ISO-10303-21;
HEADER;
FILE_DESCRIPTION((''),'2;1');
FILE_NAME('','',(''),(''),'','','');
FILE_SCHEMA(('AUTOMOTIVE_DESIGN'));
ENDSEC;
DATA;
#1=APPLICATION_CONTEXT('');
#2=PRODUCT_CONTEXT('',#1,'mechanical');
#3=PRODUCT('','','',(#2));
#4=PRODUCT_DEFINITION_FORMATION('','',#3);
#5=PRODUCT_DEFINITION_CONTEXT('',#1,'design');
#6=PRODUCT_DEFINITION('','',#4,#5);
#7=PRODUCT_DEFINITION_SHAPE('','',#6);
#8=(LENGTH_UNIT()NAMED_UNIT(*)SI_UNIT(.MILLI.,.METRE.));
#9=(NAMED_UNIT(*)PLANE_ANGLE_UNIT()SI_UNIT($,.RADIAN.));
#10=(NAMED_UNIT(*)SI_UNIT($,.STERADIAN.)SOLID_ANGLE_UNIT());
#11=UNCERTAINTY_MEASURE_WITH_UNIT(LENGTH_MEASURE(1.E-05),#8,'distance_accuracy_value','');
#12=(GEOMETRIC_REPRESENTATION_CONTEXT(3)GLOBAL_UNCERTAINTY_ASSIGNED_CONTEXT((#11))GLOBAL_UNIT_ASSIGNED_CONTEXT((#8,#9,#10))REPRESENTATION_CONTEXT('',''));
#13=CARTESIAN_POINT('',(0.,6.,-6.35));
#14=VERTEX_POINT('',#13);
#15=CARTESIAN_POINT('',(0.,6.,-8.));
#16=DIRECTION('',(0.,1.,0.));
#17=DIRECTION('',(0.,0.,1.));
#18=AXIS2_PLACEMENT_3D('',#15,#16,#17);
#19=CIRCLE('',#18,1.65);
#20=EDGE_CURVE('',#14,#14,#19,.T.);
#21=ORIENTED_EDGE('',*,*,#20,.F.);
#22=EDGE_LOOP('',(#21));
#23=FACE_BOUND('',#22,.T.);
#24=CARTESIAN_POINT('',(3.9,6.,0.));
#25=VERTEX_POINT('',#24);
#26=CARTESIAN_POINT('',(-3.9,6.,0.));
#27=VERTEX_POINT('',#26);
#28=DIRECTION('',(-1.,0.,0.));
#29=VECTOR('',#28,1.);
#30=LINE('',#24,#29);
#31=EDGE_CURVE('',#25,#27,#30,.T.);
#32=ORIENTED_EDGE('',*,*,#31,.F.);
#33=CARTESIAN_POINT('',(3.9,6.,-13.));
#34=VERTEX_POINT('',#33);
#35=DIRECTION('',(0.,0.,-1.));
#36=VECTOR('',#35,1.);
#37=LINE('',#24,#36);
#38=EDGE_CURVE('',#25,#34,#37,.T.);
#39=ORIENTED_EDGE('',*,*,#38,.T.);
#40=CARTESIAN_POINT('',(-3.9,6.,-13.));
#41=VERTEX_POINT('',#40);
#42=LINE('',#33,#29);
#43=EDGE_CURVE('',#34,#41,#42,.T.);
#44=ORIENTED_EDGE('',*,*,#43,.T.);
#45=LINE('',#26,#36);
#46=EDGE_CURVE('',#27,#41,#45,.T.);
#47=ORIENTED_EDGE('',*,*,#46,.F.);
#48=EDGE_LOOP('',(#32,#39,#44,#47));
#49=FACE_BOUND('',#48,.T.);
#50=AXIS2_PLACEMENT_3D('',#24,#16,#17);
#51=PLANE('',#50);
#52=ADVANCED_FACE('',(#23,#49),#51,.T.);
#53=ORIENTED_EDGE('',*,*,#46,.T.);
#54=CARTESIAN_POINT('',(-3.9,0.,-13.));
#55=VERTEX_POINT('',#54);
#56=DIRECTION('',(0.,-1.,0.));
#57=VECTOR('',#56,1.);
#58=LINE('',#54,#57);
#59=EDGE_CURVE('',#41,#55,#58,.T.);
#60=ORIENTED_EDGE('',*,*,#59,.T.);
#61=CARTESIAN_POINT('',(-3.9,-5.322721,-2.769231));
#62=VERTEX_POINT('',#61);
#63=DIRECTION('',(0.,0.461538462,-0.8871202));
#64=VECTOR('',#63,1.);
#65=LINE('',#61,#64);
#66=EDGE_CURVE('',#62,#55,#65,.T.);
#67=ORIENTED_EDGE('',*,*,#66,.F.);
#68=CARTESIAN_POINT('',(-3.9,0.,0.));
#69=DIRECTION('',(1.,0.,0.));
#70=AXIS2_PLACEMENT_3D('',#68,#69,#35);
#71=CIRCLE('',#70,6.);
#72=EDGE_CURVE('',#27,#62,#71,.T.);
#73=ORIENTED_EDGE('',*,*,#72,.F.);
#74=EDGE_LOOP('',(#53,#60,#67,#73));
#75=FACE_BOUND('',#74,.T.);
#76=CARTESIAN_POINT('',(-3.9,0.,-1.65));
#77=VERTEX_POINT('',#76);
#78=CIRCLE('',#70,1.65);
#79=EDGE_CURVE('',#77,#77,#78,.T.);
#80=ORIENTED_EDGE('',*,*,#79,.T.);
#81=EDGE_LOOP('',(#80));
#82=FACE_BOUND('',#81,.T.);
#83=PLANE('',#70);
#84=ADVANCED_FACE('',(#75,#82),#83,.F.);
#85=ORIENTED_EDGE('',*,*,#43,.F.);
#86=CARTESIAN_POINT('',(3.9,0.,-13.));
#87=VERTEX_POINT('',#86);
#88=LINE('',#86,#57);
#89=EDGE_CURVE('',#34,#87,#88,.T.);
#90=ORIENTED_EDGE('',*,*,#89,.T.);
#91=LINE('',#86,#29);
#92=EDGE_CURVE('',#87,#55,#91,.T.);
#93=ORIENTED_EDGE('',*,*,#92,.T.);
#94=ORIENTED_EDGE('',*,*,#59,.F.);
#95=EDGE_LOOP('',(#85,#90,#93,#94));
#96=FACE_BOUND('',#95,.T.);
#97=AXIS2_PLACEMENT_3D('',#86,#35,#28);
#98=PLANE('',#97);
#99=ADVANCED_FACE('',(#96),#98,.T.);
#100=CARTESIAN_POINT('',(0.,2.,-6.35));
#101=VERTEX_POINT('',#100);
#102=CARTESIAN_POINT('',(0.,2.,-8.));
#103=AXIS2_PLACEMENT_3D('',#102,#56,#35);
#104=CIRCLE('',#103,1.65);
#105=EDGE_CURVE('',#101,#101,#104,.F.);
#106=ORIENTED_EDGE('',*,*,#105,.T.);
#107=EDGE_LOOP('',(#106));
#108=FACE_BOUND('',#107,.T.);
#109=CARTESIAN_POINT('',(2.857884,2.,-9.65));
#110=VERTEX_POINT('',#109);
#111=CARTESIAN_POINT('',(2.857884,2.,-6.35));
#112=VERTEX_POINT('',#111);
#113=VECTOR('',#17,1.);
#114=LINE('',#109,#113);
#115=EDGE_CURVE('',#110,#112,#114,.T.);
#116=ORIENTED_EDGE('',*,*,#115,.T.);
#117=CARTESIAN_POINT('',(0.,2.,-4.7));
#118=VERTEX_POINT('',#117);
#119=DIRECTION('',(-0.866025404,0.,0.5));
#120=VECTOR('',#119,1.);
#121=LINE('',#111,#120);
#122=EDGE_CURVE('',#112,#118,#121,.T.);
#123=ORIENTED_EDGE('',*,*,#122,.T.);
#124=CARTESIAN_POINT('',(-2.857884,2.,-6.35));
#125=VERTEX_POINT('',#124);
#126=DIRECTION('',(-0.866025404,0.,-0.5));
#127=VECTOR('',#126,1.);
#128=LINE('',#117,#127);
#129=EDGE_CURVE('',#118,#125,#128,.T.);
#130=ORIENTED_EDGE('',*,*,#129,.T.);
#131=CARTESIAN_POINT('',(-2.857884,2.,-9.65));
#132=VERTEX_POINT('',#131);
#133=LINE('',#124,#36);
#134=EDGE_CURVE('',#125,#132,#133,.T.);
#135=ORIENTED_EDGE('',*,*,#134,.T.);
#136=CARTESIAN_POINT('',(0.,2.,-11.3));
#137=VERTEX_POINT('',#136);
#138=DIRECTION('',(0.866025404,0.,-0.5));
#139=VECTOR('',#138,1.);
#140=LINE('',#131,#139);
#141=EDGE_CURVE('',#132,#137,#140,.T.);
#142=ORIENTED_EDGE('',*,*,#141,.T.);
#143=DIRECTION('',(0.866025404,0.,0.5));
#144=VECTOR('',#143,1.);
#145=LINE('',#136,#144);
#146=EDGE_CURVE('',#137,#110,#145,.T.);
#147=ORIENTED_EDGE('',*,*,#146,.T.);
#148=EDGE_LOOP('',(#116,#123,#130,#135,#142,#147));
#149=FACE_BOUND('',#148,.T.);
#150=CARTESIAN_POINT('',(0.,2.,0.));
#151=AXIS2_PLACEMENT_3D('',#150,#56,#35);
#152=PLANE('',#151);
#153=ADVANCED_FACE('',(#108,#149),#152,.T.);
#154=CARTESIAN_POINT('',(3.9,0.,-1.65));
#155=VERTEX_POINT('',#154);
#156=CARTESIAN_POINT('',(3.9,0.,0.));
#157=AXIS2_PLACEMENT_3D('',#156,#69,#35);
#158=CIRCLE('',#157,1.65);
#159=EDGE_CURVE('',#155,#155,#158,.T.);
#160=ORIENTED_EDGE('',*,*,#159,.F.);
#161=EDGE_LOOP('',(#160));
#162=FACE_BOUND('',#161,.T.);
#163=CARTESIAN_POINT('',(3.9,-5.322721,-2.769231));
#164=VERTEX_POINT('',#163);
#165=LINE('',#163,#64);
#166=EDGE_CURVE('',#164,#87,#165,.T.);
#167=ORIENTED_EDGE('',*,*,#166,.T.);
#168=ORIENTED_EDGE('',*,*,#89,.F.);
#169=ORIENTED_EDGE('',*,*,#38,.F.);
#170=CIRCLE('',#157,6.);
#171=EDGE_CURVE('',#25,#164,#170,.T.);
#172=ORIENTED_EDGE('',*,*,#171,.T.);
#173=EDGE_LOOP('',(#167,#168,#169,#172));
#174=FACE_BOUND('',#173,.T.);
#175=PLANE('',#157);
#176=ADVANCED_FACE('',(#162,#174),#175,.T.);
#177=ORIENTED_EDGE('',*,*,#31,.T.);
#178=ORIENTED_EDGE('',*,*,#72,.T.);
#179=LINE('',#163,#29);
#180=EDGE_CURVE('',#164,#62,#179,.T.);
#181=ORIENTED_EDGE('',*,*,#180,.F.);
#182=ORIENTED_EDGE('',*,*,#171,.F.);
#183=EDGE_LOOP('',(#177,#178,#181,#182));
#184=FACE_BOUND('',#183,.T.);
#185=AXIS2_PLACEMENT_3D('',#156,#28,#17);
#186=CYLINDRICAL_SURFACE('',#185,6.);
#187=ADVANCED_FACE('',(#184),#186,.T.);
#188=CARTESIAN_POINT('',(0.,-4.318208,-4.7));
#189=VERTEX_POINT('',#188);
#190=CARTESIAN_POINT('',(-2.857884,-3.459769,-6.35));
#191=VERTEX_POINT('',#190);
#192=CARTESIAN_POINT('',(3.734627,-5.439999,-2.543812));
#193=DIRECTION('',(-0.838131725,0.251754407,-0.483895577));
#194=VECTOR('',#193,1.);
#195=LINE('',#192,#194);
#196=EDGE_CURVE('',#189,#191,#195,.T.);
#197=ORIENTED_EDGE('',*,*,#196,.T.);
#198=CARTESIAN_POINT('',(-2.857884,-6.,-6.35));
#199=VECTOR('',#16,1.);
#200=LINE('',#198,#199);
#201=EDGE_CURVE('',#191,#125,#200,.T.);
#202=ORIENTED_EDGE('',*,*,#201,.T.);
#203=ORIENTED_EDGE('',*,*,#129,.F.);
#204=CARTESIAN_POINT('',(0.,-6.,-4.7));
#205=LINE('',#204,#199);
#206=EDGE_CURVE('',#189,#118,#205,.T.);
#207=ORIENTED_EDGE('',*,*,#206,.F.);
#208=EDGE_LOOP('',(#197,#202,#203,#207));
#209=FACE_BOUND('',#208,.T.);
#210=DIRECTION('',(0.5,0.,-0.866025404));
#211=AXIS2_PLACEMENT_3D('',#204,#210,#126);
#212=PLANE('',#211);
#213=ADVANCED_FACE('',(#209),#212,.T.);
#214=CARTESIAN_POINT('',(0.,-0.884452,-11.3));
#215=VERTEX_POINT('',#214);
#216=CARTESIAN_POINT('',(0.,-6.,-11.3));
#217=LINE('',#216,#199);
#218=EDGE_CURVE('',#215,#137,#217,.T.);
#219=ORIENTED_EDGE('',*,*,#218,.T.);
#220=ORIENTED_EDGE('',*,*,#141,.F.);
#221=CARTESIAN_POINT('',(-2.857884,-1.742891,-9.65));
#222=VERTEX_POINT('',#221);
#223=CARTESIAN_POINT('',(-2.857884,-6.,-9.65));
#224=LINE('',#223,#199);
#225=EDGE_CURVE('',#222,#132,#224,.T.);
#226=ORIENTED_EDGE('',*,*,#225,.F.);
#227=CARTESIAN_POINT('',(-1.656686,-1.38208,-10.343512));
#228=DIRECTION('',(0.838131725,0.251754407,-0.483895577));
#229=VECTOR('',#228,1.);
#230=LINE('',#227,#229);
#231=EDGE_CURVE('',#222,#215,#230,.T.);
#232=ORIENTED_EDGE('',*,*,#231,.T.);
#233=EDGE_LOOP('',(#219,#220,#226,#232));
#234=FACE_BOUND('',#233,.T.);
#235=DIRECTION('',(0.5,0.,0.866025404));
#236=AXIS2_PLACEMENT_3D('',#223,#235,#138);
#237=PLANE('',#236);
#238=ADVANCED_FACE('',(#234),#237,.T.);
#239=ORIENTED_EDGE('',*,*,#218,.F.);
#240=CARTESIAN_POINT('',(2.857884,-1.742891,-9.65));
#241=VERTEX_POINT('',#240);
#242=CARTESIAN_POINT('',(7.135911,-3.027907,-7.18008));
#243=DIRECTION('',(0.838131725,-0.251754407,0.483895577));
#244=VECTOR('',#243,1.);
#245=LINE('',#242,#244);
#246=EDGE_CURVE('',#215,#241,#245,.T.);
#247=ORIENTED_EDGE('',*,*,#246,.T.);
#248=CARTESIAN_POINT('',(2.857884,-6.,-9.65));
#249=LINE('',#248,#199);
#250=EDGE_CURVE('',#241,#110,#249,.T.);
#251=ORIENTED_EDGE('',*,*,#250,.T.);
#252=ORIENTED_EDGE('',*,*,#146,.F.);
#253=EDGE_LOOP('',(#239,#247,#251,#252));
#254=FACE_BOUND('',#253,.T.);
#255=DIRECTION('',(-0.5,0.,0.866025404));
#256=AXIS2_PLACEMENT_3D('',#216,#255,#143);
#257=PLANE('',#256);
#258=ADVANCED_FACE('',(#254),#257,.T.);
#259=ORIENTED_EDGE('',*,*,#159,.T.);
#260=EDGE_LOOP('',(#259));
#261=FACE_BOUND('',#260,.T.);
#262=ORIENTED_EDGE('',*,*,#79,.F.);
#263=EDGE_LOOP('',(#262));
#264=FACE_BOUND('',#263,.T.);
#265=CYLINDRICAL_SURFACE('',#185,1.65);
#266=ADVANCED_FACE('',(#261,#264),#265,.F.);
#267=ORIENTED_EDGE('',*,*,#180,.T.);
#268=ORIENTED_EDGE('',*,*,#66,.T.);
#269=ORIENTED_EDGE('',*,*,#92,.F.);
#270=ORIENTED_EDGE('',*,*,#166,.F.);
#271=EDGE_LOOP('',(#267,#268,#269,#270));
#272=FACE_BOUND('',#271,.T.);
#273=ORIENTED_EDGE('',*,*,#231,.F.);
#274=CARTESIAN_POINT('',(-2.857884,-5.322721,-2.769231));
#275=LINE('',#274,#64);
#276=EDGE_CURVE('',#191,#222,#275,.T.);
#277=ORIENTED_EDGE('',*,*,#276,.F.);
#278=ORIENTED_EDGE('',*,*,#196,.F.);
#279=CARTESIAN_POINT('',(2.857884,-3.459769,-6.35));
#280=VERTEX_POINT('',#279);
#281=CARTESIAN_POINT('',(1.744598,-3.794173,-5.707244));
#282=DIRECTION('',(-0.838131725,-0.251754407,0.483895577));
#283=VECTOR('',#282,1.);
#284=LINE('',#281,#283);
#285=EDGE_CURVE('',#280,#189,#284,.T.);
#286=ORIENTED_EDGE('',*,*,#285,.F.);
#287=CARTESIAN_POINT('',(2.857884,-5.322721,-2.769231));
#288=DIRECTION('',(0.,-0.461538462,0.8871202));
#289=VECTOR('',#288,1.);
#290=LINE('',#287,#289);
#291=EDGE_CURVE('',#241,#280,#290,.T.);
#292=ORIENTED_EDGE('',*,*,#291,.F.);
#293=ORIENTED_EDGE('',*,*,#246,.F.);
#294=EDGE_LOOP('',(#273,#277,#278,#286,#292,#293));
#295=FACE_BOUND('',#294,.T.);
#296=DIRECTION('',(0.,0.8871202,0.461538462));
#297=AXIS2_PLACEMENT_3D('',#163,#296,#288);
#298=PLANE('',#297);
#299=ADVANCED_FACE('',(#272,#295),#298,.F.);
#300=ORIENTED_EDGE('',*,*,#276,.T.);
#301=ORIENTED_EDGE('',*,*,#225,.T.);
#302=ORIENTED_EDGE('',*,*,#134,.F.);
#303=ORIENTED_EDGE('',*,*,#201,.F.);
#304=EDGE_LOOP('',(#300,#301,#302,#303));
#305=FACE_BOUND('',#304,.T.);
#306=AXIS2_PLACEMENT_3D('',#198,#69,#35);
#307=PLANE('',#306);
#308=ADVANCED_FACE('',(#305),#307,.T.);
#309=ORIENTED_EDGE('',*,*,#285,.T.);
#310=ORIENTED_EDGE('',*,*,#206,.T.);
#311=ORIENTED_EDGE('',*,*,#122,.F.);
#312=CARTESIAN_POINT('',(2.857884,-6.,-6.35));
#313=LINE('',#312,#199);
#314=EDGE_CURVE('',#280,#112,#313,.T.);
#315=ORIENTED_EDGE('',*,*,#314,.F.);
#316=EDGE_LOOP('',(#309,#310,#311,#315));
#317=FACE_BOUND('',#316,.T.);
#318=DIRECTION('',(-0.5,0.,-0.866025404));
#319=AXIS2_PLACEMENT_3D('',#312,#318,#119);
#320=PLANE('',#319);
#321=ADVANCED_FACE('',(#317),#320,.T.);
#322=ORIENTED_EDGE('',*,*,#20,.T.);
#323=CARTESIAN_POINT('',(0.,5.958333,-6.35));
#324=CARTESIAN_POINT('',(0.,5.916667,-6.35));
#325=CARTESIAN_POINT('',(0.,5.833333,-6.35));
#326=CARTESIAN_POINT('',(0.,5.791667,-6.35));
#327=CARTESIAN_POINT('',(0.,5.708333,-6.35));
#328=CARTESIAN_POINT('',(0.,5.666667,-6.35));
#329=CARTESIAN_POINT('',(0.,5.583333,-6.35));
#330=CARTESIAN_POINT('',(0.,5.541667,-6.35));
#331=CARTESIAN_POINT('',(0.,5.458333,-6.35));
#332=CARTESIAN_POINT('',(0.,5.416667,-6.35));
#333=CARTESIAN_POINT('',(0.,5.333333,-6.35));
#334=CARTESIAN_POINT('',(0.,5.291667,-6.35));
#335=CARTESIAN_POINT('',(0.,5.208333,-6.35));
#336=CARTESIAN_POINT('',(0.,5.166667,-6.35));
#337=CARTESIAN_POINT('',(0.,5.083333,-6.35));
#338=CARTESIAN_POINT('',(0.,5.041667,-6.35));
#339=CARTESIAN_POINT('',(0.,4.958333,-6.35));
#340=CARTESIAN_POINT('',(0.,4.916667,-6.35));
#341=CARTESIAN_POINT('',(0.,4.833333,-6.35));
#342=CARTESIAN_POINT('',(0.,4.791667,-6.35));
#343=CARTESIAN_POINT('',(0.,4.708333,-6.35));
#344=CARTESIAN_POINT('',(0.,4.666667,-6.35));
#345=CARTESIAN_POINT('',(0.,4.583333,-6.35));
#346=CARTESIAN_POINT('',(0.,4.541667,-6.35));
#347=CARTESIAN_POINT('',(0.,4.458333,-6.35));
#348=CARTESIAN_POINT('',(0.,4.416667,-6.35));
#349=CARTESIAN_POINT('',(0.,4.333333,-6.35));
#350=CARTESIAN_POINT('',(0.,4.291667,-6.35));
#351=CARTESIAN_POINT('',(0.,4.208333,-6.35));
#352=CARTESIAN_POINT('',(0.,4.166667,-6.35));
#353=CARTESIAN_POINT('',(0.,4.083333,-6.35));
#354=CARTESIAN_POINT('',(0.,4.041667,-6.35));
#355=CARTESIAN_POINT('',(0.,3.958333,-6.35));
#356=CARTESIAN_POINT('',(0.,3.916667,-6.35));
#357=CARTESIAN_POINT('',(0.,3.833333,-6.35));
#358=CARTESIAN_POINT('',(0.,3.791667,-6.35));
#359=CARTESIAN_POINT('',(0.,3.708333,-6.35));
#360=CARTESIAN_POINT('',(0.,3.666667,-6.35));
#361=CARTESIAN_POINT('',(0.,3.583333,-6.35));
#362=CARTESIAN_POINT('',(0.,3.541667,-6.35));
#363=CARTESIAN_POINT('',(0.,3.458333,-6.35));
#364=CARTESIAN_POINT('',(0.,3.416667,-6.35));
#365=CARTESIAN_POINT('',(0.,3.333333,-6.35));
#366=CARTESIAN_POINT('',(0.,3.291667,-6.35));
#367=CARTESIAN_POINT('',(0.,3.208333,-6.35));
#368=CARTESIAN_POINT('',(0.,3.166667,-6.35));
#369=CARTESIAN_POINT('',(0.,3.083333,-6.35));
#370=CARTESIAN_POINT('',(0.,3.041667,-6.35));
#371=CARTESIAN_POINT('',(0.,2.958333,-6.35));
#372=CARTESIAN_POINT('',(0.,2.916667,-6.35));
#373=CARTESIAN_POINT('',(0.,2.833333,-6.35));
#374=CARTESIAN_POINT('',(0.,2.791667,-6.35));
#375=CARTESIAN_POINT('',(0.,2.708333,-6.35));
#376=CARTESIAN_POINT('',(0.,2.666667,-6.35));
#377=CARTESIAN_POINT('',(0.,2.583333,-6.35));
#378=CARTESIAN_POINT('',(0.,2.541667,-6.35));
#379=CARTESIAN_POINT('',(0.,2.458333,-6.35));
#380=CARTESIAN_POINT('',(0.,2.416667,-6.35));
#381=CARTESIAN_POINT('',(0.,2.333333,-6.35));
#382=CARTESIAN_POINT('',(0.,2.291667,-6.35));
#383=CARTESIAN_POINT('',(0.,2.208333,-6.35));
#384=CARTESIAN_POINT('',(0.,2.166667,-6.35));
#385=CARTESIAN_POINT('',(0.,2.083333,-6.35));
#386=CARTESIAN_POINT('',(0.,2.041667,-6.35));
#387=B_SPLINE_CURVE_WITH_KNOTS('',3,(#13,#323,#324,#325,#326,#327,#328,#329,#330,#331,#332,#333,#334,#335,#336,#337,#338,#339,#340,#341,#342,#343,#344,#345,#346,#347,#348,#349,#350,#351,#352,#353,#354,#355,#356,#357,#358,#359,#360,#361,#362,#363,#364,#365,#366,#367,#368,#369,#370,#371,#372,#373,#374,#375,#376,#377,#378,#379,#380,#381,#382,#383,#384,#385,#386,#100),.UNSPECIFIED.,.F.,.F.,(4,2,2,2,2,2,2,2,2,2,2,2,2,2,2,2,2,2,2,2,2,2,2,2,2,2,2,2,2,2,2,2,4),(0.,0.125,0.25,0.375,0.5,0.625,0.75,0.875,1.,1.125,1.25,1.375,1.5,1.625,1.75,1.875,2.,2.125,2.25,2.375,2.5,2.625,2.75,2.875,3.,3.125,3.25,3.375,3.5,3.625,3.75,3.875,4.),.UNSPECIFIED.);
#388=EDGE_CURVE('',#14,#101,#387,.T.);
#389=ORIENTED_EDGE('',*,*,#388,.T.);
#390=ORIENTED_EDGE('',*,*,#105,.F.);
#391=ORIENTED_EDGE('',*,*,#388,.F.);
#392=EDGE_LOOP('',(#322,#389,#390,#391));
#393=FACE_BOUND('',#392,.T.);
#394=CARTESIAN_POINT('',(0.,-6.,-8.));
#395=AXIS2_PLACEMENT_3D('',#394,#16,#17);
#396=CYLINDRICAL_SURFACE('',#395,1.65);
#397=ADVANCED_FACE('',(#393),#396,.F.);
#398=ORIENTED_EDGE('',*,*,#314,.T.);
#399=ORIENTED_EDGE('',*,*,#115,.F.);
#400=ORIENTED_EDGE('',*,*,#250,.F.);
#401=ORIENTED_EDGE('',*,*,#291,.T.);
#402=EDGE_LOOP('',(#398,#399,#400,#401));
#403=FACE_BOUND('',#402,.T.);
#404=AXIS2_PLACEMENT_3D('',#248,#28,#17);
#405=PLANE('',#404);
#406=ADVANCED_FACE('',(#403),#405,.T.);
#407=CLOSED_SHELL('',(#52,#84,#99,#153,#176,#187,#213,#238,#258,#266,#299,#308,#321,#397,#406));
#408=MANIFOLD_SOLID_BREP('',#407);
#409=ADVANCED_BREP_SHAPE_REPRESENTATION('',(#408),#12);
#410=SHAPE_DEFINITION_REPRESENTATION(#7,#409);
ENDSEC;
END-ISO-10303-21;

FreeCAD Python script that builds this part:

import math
import FreeCAD as App
import Part
import Sketcher

V = App.Vector
Q = App.Units.Quantity

doc = App.newDocument("Part")
params = doc.addObject("Spreadsheet::Sheet", "Params")
for row, (alias, value) in enumerate([
    ("sketch1_diameter", "12 mm"),
    ("sketch1_diameter2", "3.3 mm"),
    ("pad1_length", "7.8 mm"),
    ("sketch2_radius", "6 mm"),
    ("sketch2_height", "13 mm"),
    ("pad2_length", "7.8 mm"),
    ("sketch3_diameter", "3.3 mm"),
    ("sketch4_height", "3.3 mm"),
    ("sketch4_length", "3.3 mm"),
], start=1):
    params.set(f"A{row}", alias)
    params.set(f"B{row}", "=" + value)
    params.setAlias(f"B{row}", alias)

body = doc.addObject("PartDesign::Body", "Body")

# Sketch on YZ plane
sketch1 = body.newObject("Sketcher::SketchObject", "Sketch")
sketch1.AttachmentSupport = (doc.getObject("YZ_Plane"), [""])
sketch1.MapMode = "FlatFace"
sketch1.addGeometry([
    Part.Circle(V(0, 0, 0), V(0, 0, 1), 6),
    Part.Circle(V(0, 0, 0), V(0, 0, 1), 1.6),
], False)
sketch1.addConstraint([
    Sketcher.Constraint("Coincident", 0, 3, -1, 1),
    Sketcher.Constraint("Coincident", 1, 3, -1, 1),
    Sketcher.Constraint("Diameter", 0, Q("12 mm")),
    Sketcher.Constraint("Diameter", 1, Q("3.3 mm")),
])
sketch1.setExpression("Constraints[2]", "Params.sketch1_diameter")
sketch1.setExpression("Constraints[3]", "Params.sketch1_diameter2")
pad1 = body.newObject("PartDesign::Pad", "Pad")
pad1.Profile = sketch1
pad1.setExpression("Length", "Params.pad1_length")
pad1.Midplane = True

# Sketch on YZ plane
sketch2 = body.newObject("Sketcher::SketchObject", "Sketch001")
sketch2.AttachmentSupport = (doc.getObject("YZ_Plane"), [""])
sketch2.MapMode = "FlatFace"
sketch2.addGeometry([
    Part.ArcOfCircle(Part.Circle(V(0, 0, 0), V(0, 0, 1), 6), math.radians(-153), math.radians(0)),
    Part.LineSegment(V(-5, -3, 0), V(0, -13, 0)),
    Part.LineSegment(V(0, -13, 0), V(6, -13, 0)),
    Part.LineSegment(V(6, -13, 0), V(6, 0, 0)),
], False)
sketch2.addConstraint([
    Sketcher.Constraint("Tangent", 0, 1, 1, 1),
    Sketcher.Constraint("Coincident", 1, 2, 2, 1),
    Sketcher.Constraint("Coincident", 2, 2, 3, 1),
    Sketcher.Constraint("Tangent", 3, 2, 0, 2),
    Sketcher.Constraint("Horizontal", 2),
    Sketcher.Constraint("Vertical", 3),
    Sketcher.Constraint("Coincident", 0, 3, -1, 1),
    Sketcher.Constraint("PointOnObject", 1, 2, -2),
    Sketcher.Constraint("Radius", 0, Q("6 mm")),
    Sketcher.Constraint("DistanceY", 3, 1, 3, 2, Q("13 mm")),
])
sketch2.setExpression("Constraints[8]", "Params.sketch2_radius")
sketch2.setExpression("Constraints[9]", "Params.sketch2_height")
pad2 = body.newObject("PartDesign::Pad", "Pad001")
pad2.Profile = sketch2
pad2.setExpression("Length", "Params.pad2_length")
pad2.Midplane = True

# Sketch on XZ plane
sketch3 = body.newObject("Sketcher::SketchObject", "Sketch002")
sketch3.AttachmentSupport = (doc.getObject("XZ_Plane"), [""])
sketch3.MapMode = "FlatFace"
sketch3.AttachmentOffset = App.Placement(V(0, 0, -6), App.Rotation())
sketch3.addGeometry(Part.Circle(V(0, -8, 0), V(0, 0, 1), 1.6), False)
sketch3.addConstraint([
    Sketcher.Constraint("PointOnObject", 0, 3, -2),
    Sketcher.Constraint("Diameter", 0, Q("3.3 mm")),
    Sketcher.Constraint("DistanceY", 0, 3, -1, 1, Q("8 mm")),
])
sketch3.setExpression("Constraints[1]", "Params.sketch3_diameter")
pocket1 = body.newObject("PartDesign::Pocket", "Pocket")
pocket1.Profile = sketch3
pocket1.Type = "ThroughAll"
pocket1.Reversed = True

# Sketch on XZ plane
sketch4 = body.newObject("Sketcher::SketchObject", "Sketch003")
sketch4.AttachmentSupport = (doc.getObject("XZ_Plane"), [""])
sketch4.MapMode = "FlatFace"
sketch4.AttachmentOffset = App.Placement(V(0, 0, -2), App.Rotation())
sketch4.addGeometry([
    Part.LineSegment(V(0, -11.3, 0), V(2.9, -9.7, 0)),  # 0
    Part.LineSegment(V(2.9, -9.7, 0), V(2.9, -6.3, 0)),  # 1
    Part.LineSegment(V(2.9, -6.3, 0), V(0, -4.7, 0)),  # 2
    Part.LineSegment(V(0, -4.7, 0), V(-2.9, -6.3, 0)),  # 3
    Part.LineSegment(V(-2.9, -6.3, 0), V(-2.9, -9.7, 0)),  # 4
    Part.LineSegment(V(-2.9, -9.7, 0), V(0, -11.3, 0)),  # 5
], False)
sketch4.addConstraint([
    Sketcher.Constraint("Coincident", 0, 2, 1, 1),
    Sketcher.Constraint("Coincident", 1, 2, 2, 1),
    Sketcher.Constraint("Coincident", 2, 2, 3, 1),
    Sketcher.Constraint("Coincident", 3, 2, 4, 1),
    Sketcher.Constraint("Coincident", 4, 2, 5, 1),
    Sketcher.Constraint("Coincident", 5, 2, 0, 1),
    Sketcher.Constraint("Vertical", 1),
    Sketcher.Constraint("Vertical", 4),
    Sketcher.Constraint("Symmetric", 1, 2, 3, 2, -2),
    Sketcher.Constraint("PointOnObject", 2, 2, -2),
    Sketcher.Constraint("PointOnObject", 5, 2, -2),
    Sketcher.Constraint("Parallel", 0, 3),
    Sketcher.Constraint("Parallel", 2, 5),
    Sketcher.Constraint("Angle", 0, Q("30 deg")),
    Sketcher.Constraint("DistanceY", 1, 1, 1, 2, Q("3.3 mm")),
    Sketcher.Constraint("Distance", 0, Q("3.3 mm")),
    Sketcher.Constraint("DistanceY", 2, 2, -1, 1, Q("4.7 mm")),
])
sketch4.setExpression("Constraints[14]", "Params.sketch4_height")
sketch4.setExpression("Constraints[15]", "Params.sketch4_length")
pocket2 = body.newObject("PartDesign::Pocket", "Pocket001")
pocket2.Profile = sketch4
pocket2.Type = "ThroughAll"
pocket2.Reversed = True

doc.recompute()
